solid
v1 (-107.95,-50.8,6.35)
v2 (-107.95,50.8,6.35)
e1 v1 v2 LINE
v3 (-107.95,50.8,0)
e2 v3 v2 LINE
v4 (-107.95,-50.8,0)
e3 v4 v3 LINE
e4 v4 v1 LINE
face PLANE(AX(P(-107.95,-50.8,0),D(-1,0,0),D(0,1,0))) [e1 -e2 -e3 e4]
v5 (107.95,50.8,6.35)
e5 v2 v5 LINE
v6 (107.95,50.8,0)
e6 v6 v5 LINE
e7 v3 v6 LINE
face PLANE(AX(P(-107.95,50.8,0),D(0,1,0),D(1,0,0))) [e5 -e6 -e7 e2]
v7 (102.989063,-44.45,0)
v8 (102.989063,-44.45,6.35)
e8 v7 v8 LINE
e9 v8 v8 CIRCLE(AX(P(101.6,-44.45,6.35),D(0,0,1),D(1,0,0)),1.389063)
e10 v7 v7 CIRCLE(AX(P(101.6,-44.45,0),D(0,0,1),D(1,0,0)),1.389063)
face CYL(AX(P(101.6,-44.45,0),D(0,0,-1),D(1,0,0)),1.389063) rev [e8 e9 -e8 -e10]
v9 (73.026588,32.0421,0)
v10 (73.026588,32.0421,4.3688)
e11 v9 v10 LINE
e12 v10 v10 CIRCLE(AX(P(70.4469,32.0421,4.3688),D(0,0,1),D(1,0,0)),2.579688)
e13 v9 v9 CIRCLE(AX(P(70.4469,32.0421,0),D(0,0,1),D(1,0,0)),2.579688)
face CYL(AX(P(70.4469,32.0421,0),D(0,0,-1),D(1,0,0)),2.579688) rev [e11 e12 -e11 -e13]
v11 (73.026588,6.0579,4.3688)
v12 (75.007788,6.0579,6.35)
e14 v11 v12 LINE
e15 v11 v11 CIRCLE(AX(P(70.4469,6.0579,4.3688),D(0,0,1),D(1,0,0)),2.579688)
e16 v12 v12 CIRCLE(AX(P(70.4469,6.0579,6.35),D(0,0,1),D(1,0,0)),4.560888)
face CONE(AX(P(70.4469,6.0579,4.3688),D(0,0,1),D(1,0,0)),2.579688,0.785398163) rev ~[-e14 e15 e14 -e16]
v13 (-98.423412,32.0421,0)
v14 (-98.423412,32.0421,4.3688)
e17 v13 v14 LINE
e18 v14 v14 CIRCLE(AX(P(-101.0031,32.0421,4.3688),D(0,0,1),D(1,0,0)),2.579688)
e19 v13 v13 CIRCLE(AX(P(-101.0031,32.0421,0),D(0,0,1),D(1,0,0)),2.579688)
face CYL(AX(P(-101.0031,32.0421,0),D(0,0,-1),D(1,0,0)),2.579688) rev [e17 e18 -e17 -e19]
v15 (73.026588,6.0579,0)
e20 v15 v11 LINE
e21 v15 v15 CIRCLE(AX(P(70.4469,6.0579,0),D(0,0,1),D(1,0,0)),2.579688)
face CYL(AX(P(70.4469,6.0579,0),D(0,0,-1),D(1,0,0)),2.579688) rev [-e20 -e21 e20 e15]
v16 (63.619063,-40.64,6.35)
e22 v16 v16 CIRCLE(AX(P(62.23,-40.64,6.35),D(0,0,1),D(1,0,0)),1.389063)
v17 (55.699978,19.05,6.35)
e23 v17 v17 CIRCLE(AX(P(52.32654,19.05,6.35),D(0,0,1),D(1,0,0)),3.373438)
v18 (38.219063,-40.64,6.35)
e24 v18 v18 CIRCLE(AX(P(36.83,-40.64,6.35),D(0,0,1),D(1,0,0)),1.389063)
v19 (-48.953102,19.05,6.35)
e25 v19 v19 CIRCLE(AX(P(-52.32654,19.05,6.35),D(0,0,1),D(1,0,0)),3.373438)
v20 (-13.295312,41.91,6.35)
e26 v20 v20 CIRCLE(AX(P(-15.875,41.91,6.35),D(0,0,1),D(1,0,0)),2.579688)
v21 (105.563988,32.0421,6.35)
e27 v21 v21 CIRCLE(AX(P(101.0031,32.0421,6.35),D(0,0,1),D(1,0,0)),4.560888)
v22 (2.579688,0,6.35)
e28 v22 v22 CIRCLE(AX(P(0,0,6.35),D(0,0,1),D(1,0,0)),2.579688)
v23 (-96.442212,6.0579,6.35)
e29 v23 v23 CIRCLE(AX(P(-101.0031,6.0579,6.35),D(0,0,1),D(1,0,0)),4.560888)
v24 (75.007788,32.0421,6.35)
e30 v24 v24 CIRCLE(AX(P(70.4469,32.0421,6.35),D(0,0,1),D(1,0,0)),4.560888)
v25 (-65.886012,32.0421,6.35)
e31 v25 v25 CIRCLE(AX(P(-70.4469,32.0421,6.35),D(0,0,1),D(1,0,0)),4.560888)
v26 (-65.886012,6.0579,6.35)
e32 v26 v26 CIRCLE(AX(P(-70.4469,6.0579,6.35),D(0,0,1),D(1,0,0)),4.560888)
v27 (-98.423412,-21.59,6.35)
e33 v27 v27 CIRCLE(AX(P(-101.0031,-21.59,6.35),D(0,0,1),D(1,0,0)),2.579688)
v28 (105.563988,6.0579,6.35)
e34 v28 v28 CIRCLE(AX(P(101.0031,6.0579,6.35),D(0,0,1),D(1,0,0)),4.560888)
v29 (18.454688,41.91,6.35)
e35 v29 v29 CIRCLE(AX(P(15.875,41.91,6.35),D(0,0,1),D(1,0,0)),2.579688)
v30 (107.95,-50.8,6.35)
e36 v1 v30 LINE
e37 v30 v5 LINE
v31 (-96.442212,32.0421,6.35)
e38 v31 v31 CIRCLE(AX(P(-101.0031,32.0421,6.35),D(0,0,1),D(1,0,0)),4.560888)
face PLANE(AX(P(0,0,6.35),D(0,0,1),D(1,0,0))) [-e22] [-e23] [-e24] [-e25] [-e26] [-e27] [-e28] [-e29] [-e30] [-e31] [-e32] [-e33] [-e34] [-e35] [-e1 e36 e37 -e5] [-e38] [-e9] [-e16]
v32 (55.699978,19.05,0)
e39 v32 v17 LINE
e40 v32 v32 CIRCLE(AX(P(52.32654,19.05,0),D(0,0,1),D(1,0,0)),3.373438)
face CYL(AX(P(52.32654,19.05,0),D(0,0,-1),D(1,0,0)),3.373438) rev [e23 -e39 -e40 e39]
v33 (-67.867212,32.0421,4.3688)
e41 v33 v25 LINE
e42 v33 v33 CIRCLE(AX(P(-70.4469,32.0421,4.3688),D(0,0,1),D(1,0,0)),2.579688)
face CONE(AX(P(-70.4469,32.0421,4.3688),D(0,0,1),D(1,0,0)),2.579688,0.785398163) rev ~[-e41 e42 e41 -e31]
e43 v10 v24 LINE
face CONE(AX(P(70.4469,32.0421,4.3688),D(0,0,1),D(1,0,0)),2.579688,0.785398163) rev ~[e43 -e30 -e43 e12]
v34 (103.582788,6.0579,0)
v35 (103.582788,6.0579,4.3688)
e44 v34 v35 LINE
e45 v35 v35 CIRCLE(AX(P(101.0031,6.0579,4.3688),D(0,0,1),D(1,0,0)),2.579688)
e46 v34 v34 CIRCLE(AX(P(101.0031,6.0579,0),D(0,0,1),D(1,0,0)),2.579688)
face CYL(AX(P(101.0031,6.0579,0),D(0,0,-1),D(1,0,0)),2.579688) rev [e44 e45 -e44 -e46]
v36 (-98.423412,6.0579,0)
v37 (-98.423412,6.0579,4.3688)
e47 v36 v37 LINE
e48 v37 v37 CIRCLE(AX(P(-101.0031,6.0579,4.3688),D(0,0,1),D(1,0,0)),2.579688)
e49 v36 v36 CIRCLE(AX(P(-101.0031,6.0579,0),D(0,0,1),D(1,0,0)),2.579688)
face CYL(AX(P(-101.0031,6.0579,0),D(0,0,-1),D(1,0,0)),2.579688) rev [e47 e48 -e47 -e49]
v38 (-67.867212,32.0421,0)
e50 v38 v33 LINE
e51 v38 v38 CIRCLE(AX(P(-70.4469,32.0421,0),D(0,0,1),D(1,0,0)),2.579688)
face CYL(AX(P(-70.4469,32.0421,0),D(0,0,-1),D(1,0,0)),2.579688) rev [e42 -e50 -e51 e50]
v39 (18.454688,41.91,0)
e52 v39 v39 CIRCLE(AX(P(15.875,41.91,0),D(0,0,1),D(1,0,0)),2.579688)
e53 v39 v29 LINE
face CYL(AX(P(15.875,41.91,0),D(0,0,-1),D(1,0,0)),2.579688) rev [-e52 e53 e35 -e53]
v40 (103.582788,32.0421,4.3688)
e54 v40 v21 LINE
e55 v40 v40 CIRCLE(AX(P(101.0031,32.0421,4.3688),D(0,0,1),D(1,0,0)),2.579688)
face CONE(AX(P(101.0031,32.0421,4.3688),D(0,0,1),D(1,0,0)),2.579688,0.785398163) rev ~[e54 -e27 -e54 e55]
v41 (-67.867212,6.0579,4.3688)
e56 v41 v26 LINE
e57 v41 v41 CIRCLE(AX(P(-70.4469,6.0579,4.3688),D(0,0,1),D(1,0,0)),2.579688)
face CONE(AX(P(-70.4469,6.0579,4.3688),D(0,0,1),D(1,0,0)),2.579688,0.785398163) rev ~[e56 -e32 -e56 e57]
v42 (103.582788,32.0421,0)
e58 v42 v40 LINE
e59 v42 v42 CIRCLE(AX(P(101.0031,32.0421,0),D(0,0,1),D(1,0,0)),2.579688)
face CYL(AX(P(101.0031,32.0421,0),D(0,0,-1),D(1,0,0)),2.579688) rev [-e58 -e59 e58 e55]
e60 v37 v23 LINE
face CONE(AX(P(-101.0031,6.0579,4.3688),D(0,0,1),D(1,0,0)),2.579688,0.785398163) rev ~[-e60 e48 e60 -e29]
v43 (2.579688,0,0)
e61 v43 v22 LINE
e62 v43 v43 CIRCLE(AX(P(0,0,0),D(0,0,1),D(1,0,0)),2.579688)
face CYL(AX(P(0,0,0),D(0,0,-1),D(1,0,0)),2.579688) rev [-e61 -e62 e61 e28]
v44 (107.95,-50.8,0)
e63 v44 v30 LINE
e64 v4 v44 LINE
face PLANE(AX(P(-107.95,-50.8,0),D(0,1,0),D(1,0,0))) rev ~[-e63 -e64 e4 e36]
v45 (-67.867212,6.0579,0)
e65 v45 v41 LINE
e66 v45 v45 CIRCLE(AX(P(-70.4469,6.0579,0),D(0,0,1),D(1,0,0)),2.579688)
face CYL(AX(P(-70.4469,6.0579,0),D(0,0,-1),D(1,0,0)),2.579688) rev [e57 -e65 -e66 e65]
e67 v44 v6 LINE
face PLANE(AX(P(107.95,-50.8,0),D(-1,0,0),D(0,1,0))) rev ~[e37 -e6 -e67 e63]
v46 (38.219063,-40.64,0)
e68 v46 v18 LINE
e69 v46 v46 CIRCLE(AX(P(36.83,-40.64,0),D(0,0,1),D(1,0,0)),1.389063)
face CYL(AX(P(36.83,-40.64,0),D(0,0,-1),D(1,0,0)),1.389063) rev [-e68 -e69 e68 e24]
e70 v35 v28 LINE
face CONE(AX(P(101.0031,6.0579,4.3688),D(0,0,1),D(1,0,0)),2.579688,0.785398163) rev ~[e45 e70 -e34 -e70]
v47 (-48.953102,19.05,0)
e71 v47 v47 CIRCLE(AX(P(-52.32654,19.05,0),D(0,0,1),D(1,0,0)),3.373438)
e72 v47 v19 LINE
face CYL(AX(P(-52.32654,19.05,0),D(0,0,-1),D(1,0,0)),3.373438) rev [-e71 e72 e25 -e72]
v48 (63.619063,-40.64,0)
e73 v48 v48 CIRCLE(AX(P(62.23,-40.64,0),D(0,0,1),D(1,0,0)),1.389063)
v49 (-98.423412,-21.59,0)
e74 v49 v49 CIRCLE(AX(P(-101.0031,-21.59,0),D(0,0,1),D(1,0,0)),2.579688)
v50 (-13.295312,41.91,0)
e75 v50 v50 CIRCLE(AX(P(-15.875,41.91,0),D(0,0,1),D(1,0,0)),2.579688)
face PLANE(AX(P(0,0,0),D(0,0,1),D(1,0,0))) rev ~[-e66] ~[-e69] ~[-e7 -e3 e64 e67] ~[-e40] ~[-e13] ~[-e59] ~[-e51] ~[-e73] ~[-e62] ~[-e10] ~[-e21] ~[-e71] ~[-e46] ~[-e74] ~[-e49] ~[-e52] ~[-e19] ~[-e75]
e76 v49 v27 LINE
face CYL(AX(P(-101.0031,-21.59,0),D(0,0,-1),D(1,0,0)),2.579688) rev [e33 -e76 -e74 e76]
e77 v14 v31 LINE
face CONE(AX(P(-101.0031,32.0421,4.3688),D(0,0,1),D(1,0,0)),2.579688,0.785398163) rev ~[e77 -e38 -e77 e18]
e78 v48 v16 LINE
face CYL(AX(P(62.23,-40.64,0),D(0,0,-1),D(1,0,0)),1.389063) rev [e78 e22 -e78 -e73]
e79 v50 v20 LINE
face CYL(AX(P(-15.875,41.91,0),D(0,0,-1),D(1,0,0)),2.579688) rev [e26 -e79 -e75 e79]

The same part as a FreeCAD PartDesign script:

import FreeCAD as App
import Part
import Sketcher
Q = App.Units.Quantity


def edges_at(feature, points):
    """Names of the edges that pass closest to the given points."""
    edges = feature.Shape.Edges
    near = lambda p: min(range(len(edges)), key=lambda i: edges[i].distToShape(Part.Vertex(*p))[0])
    return sorted({f"Edge{near(p) + 1}" for p in points})


def add_polygon(sketch, points):
    """Adds a closed chain of lines whose ends are joined by coincident constraints."""
    first, n = sketch.GeometryCount, len(points)
    for a, b in zip(points, points[1:] + points[:1]):
        sketch.addGeometry(Part.LineSegment(App.Vector(*a, 0), App.Vector(*b, 0)), False)
    for i in range(n):
        sketch.addConstraint(Sketcher.Constraint("Coincident", first + i, 2, first + (i + 1) % n, 1))

doc = App.newDocument("Part")
body = doc.addObject("PartDesign::Body", "Body")

sketch1 = doc.addObject("Sketcher::SketchObject", "Sketch")
body.addObject(sketch1)
sketch1.AttachmentSupport = (doc.XY_Plane, [""])
sketch1.MapMode = "FlatFace"
add_polygon(sketch1, [(-108, 50.8), (-108, -50.8), (108, -50.8), (108, 50.8)])
sketch1.addGeometry(Part.Circle(App.Vector(-101, -21.6, 0), App.Vector(0, 0, 1), 2.6), False)
sketch1.addGeometry(Part.Circle(App.Vector(36.8, -40.6, 0), App.Vector(0, 0, 1), 1.4), False)
sketch1.addGeometry(Part.Circle(App.Vector(62.2, -40.6, 0), App.Vector(0, 0, 1), 1.4), False)
sketch1.addGeometry(Part.Circle(App.Vector(101.6, -44.5, 0), App.Vector(0, 0, 1), 1.4), False)
sketch1.addGeometry(Part.Circle(App.Vector(-101, 6.1, 0), App.Vector(0, 0, 1), 2.6), False)
sketch1.addGeometry(Part.Circle(App.Vector(-70.4, 6.1, 0), App.Vector(0, 0, 1), 2.6), False)
sketch1.addGeometry(Part.Circle(App.Vector(-52.3, 19.1, 0), App.Vector(0, 0, 1), 3.4), False)
sketch1.addGeometry(Part.Circle(App.Vector(-101, 32, 0), App.Vector(0, 0, 1), 2.6), False)
sketch1.addGeometry(Part.Circle(App.Vector(-70.4, 32, 0), App.Vector(0, 0, 1), 2.6), False)
sketch1.addGeometry(Part.Circle(App.Vector(-15.9, 41.9, 0), App.Vector(0, 0, 1), 2.6), False)
sketch1.addGeometry(Part.Circle(App.Vector(0, 0, 0), App.Vector(0, 0, 1), 2.6), False)
sketch1.addGeometry(Part.Circle(App.Vector(70.4, 6.1, 0), App.Vector(0, 0, 1), 2.6), False)
sketch1.addGeometry(Part.Circle(App.Vector(101, 6.1, 0), App.Vector(0, 0, 1), 2.6), False)
sketch1.addGeometry(Part.Circle(App.Vector(52.3, 19.1, 0), App.Vector(0, 0, 1), 3.4), False)
sketch1.addGeometry(Part.Circle(App.Vector(15.9, 41.9, 0), App.Vector(0, 0, 1), 2.6), False)
sketch1.addGeometry(Part.Circle(App.Vector(70.4, 32, 0), App.Vector(0, 0, 1), 2.6), False)
sketch1.addGeometry(Part.Circle(App.Vector(101, 32, 0), App.Vector(0, 0, 1), 2.6), False)
sketch1.addConstraint(Sketcher.Constraint("Vertical", 0))
sketch1.addConstraint(Sketcher.Constraint("Horizontal", 1))
sketch1.addConstraint(Sketcher.Constraint("Vertical", 2))
sketch1.addConstraint(Sketcher.Constraint("Horizontal", 3))
sketch1.addConstraint(Sketcher.Constraint("Coincident", 14, 3, -1, 1))
sketch1.addConstraint(Sketcher.Constraint("Equal", 5, 6))
sketch1.addConstraint(Sketcher.Constraint("Equal", 6, 7))
sketch1.addConstraint(Sketcher.Constraint("Equal", 4, 8))
sketch1.addConstraint(Sketcher.Constraint("Equal", 8, 9))
sketch1.addConstraint(Sketcher.Constraint("Equal", 9, 11))
sketch1.addConstraint(Sketcher.Constraint("Equal", 11, 12))
sketch1.addConstraint(Sketcher.Constraint("Equal", 12, 13))
sketch1.addConstraint(Sketcher.Constraint("Equal", 13, 14))
sketch1.addConstraint(Sketcher.Constraint("Equal", 14, 15))
sketch1.addConstraint(Sketcher.Constraint("Equal", 15, 16))
sketch1.addConstraint(Sketcher.Constraint("Equal", 10, 17))
sketch1.addConstraint(Sketcher.Constraint("Equal", 16, 18))
sketch1.addConstraint(Sketcher.Constraint("Equal", 18, 19))
sketch1.addConstraint(Sketcher.Constraint("Equal", 19, 20))
sketch1.addConstraint(Sketcher.Constraint("Symmetric", 0, 2, 2, 2, -1, 1))
sketch1.addConstraint(Sketcher.Constraint("Symmetric", 9, 3, 15, 3, -2))
sketch1.addConstraint(Sketcher.Constraint("Symmetric", 8, 3, 16, 3, -2))
sketch1.addConstraint(Sketcher.Constraint("Symmetric", 10, 3, 17, 3, -2))
sketch1.addConstraint(Sketcher.Constraint("Symmetric", 13, 3, 18, 3, -2))
sketch1.addConstraint(Sketcher.Constraint("Symmetric", 12, 3, 19, 3, -2))
sketch1.addConstraint(Sketcher.Constraint("Symmetric", 11, 3, 20, 3, -2))
sketch1.addConstraint(Sketcher.Constraint("Horizontal", 5, 3, 6, 3))
sketch1.addConstraint(Sketcher.Constraint("Horizontal", 8, 3, 9, 3))
sketch1.addConstraint(Sketcher.Constraint("Horizontal", 11, 3, 12, 3))
sketch1.addConstraint(Sketcher.Constraint("Vertical", 4, 3, 8, 3))
sketch1.addConstraint(Sketcher.Constraint("Vertical", 8, 3, 11, 3))
sketch1.addConstraint(Sketcher.Constraint("Vertical", 9, 3, 12, 3))
sketch1.addConstraint(Sketcher.Constraint("DistanceY", 0, 2, 0, 1, Q("4 in")))
sketch1.addConstraint(Sketcher.Constraint("Diameter", 4, Q("0.203125 in")))
sketch1.addConstraint(Sketcher.Constraint("Diameter", 5, Q("0.109375 in")))
sketch1.addConstraint(Sketcher.Constraint("Diameter", 10, Q("0.265625 in")))
sketch1.addConstraint(Sketcher.Constraint("DistanceX", 1, 1, 1, 2, Q("8.5 in")))
sketch1.addConstraint(Sketcher.Constraint("DistanceX", -1, 1, 7, 3, Q("4 in")))
sketch1.addConstraint(Sketcher.Constraint("DistanceX", 5, 3, 6, 3, Q("1 in")))
sketch1.addConstraint(Sketcher.Constraint("DistanceY", 5, 3, -1, 1, Q("1.6 in")))
sketch1.addConstraint(Sketcher.Constraint("DistanceY", 7, 3, 4, 3, Q("0.9 in")))
sketch1.addConstraint(Sketcher.Constraint("DistanceY", 4, 3, 10, 3, Q("1.6 in")))
sketch1.addConstraint(Sketcher.Constraint("DistanceY", 10, 3, 13, 3, Q("0.9 in")))
sketch1.addConstraint(Sketcher.Constraint("DistanceX", 6, 3, 1, 2, Q("1.8 in")))
sketch1.addConstraint(Sketcher.Constraint("DistanceY", 4, 3, -1, 1, Q("0.85 in")))
sketch1.addConstraint(Sketcher.Constraint("DistanceX", 13, 3, 18, 3, Q("1.25 in")))
sketch1.addConstraint(Sketcher.Constraint("DistanceX", 8, 3, 9, 3, Q("1.203 in")))
sketch1.addConstraint(Sketcher.Constraint("DistanceY", 8, 3, 11, 3, Q("1.023 in")))
sketch1.addConstraint(Sketcher.Constraint("DistanceX", 4, 3, -1, 1, Q("3.9765 in")))
sketch1.addConstraint(Sketcher.Constraint("DistanceY", -1, 1, 8, 3, Q("0.2385 in")))
sketch1.addConstraint(Sketcher.Constraint("DistanceX", 10, 3, -1, 1, Q("2.0601 in")))
pad1 = doc.addObject("PartDesign::Pad", "Pad")
body.addObject(pad1)
pad1.Profile = sketch1
pad1.Length = Q("0.25 in")
doc.recompute()

chamfer = doc.addObject("PartDesign::Chamfer", "Chamfer")
body.addObject(chamfer)
chamfer.Base = (pad1, edges_at(pad1, [
    (-73.027, 32.042, 6.35),
    (-103.583, 32.042, 6.35),
    (-103.583, 6.058, 6.35),
    (-73.027, 6.058, 6.35),
    (67.867, 32.042, 6.35),
    (67.867, 6.058, 6.35),
    (98.423, 6.058, 6.35),
    (98.423, 32.042, 6.35),
]))
chamfer.Size = Q("0.078 in")

doc.recompute()
